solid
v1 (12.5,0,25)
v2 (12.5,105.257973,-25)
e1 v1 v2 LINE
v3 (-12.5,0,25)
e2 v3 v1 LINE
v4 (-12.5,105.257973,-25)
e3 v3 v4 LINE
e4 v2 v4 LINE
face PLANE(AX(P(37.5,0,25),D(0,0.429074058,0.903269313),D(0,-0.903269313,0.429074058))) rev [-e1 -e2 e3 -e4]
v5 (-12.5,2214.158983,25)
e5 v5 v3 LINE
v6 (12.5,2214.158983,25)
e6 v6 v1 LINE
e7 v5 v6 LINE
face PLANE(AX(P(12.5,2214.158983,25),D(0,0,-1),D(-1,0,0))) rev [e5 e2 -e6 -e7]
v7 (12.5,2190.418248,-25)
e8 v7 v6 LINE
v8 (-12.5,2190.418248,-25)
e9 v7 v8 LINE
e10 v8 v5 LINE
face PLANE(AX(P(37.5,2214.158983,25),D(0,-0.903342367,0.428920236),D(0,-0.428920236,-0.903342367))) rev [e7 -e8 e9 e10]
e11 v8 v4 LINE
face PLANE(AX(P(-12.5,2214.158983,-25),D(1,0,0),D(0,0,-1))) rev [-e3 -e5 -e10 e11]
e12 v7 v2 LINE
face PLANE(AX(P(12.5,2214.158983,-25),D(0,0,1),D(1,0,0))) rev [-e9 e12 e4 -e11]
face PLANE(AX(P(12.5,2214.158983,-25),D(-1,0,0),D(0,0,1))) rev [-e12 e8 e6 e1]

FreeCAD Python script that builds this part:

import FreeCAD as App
import Part
import Sketcher

doc = App.newDocument("Part")
params = doc.addObject("Spreadsheet::Sheet", "Params")
for row, (alias, value) in enumerate([
    ("sketch1_width", "25 mm"),
    ("sketch1_height", "50 mm"),
    ("pad1_length", "2214.158983 mm"),
    ("sketch2_height", "50 mm"),
    ("sketch2_length", "116.53 mm"),
    ("pocket1_length", "50 mm"),
    ("sketch3_height", "50 mm"),
    ("sketch3_length", "55.35 mm"),
    ("pocket2_length", "50 mm"),
], start=1):
    params.set(f"A{row}", alias)
    params.set(f"B{row}", "=" + value)
    params.setAlias(f"B{row}", alias)

body = doc.addObject("PartDesign::Body", "Body")

# Sketch on XZ plane
sketch1 = doc.addObject("Sketcher::SketchObject", "Sketch")
body.addObject(sketch1)
sketch1.AttachmentSupport = (doc.XZ_Plane, [""])
sketch1.MapMode = "FlatFace"
sketch1.addGeometry(Part.LineSegment(App.Vector(-12, -25, 0), App.Vector(-12, 25, 0)), False)
sketch1.addGeometry(Part.LineSegment(App.Vector(-12, 25, 0), App.Vector(12, 25, 0)), False)
sketch1.addGeometry(Part.LineSegment(App.Vector(12, 25, 0), App.Vector(12, -25, 0)), False)
sketch1.addGeometry(Part.LineSegment(App.Vector(12, -25, 0), App.Vector(-12, -25, 0)), False)
sketch1.addConstraint(Sketcher.Constraint("Coincident", 0, 2, 1, 1))
sketch1.addConstraint(Sketcher.Constraint("Coincident", 1, 2, 2, 1))
sketch1.addConstraint(Sketcher.Constraint("Coincident", 2, 2, 3, 1))
sketch1.addConstraint(Sketcher.Constraint("Coincident", 3, 2, 0, 1))
sketch1.addConstraint(Sketcher.Constraint("Vertical", 0))
sketch1.addConstraint(Sketcher.Constraint("Horizontal", 1))
sketch1.addConstraint(Sketcher.Constraint("Vertical", 2))
sketch1.addConstraint(Sketcher.Constraint("Horizontal", 3))
sketch1.addConstraint(Sketcher.Constraint("Symmetric", 0, 2, 2, 2, -1, 1))
sketch1.addConstraint(Sketcher.Constraint("DistanceX", 1, 1, 1, 2, 25.0))
sketch1.addConstraint(Sketcher.Constraint("DistanceY", 0, 1, 0, 2, 50.0))
sketch1.setExpression("Constraints[9]", "Params.sketch1_width")
sketch1.setExpression("Constraints[10]", "Params.sketch1_height")
pad1 = doc.addObject("PartDesign::Pad", "Pad")
body.addObject(pad1)
pad1.Profile = sketch1
pad1.setExpression("Length", "Params.pad1_length")
pad1.Reversed = True

# Sketch on YZ plane
sketch2 = doc.addObject("Sketcher::SketchObject", "Sketch001")
body.addObject(sketch2)
sketch2.AttachmentSupport = (doc.YZ_Plane, [""])
sketch2.MapMode = "FlatFace"
sketch2.AttachmentOffset = App.Placement(App.Vector(0, 0, -12.5), App.Rotation())
sketch2.addGeometry(Part.LineSegment(App.Vector(0, 25, 0), App.Vector(105, -25, 0)), False)
sketch2.addGeometry(Part.LineSegment(App.Vector(105, -25, 0), App.Vector(0, -25, 0)), False)
sketch2.addGeometry(Part.LineSegment(App.Vector(0, -25, 0), App.Vector(0, 25, 0)), False)
sketch2.addConstraint(Sketcher.Constraint("Coincident", 0, 2, 1, 1))
sketch2.addConstraint(Sketcher.Constraint("Coincident", 1, 2, 2, 1))
sketch2.addConstraint(Sketcher.Constraint("Coincident", 2, 2, 0, 1))
sketch2.addConstraint(Sketcher.Constraint("Horizontal", 1))
sketch2.addConstraint(Sketcher.Constraint("Vertical", 2))
sketch2.addConstraint(Sketcher.Constraint("Symmetric", 1, 2, 2, 2, -1, 1))
sketch2.addConstraint(Sketcher.Constraint("DistanceY", 2, 1, 2, 2, 50.0))
sketch2.addConstraint(Sketcher.Constraint("Distance", 0, 116.53))
sketch2.setExpression("Constraints[6]", "Params.sketch2_height")
sketch2.setExpression("Constraints[7]", "Params.sketch2_length")
pocket1 = doc.addObject("PartDesign::Pocket", "Pocket")
body.addObject(pocket1)
pocket1.Profile = sketch2
pocket1.setExpression("Length", "Params.pocket1_length")
pocket1.Reversed = True

# Sketch on YZ plane
sketch3 = doc.addObject("Sketcher::SketchObject", "Sketch002")
body.addObject(sketch3)
sketch3.AttachmentSupport = (doc.YZ_Plane, [""])
sketch3.MapMode = "FlatFace"
sketch3.AttachmentOffset = App.Placement(App.Vector(0, 0, -12.5), App.Rotation())
sketch3.addGeometry(Part.LineSegment(App.Vector(2190, -25, 0), App.Vector(2214, 25, 0)), False)
sketch3.addGeometry(Part.LineSegment(App.Vector(2214, 25, 0), App.Vector(2214, -25, 0)), False)
sketch3.addGeometry(Part.LineSegment(App.Vector(2214, -25, 0), App.Vector(2190, -25, 0)), False)
sketch3.addConstraint(Sketcher.Constraint("Coincident", 0, 2, 1, 1))
sketch3.addConstraint(Sketcher.Constraint("Coincident", 1, 2, 2, 1))
sketch3.addConstraint(Sketcher.Constraint("Coincident", 2, 2, 0, 1))
sketch3.addConstraint(Sketcher.Constraint("Vertical", 1))
sketch3.addConstraint(Sketcher.Constraint("Horizontal", 2))
sketch3.addConstraint(Sketcher.Constraint("DistanceY", 1, 2, 1, 1, 50.0))
sketch3.addConstraint(Sketcher.Constraint("DistanceY", -1, 1, 0, 2, 25.0))
sketch3.addConstraint(Sketcher.Constraint("Distance", 0, 55.35))
sketch3.addConstraint(Sketcher.Constraint("DistanceX", -1, 1, 0, 2, 2214.158983))
sketch3.setExpression("Constraints[5]", "Params.sketch3_height")
sketch3.setExpression("Constraints[7]", "Params.sketch3_length")
pocket2 = doc.addObject("PartDesign::Pocket", "Pocket001")
body.addObject(pocket2)
pocket2.Profile = sketch3
pocket2.setExpression("Length", "Params.pocket2_length")
pocket2.Reversed = True

doc.recompute()
